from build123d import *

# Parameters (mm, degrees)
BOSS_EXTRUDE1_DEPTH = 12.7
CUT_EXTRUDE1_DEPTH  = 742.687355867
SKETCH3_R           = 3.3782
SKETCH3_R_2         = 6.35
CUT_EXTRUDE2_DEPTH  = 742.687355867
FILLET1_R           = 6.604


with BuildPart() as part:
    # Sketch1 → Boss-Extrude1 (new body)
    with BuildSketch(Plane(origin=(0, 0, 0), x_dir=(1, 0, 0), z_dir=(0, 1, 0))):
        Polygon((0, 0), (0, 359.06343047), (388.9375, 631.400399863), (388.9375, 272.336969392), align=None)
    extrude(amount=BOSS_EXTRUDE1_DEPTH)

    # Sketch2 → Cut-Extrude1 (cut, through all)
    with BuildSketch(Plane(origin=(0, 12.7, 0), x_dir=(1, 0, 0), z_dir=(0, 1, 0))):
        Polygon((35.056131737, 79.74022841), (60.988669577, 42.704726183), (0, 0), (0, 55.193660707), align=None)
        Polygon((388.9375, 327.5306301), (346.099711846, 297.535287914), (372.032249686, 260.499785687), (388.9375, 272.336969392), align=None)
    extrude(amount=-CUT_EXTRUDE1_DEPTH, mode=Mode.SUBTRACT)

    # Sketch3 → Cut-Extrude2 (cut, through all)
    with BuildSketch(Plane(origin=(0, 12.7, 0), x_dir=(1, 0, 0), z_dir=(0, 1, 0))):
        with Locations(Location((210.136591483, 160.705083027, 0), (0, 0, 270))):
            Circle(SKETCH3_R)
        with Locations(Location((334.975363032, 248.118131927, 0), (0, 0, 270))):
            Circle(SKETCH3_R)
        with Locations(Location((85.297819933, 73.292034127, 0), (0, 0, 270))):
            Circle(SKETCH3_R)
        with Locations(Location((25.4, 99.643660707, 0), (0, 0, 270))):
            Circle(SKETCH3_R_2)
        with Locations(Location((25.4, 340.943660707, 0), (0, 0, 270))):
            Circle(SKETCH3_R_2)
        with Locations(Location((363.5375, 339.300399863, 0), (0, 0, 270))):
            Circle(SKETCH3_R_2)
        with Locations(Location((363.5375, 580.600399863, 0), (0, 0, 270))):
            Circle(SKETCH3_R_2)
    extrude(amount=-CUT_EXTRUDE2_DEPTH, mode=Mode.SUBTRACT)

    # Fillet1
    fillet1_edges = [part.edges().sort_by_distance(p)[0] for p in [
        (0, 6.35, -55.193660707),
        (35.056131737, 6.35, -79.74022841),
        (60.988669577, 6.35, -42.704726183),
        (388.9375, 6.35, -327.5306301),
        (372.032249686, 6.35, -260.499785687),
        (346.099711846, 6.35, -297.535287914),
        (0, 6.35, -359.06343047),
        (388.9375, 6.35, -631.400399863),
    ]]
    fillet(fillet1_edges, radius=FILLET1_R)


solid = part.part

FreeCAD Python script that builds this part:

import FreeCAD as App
import Part
import Sketcher
from FreeCAD import Vector
Q = App.Units.Quantity


def edges_at(feature, points):
    """Names of the edges that pass closest to the given points."""
    edges = feature.Shape.Edges
    near = lambda p: min(range(len(edges)), key=lambda i: edges[i].distToShape(Part.Vertex(*p))[0])
    return sorted({f"Edge{near(p) + 1}" for p in points})


def add_polygon(sketch, points):
    """Adds a closed chain of lines whose ends are joined by coincident constraints."""
    first, n = sketch.GeometryCount, len(points)
    for a, b in zip(points, points[1:] + points[:1]):
        sketch.addGeometry(Part.LineSegment(App.Vector(*a, 0), App.Vector(*b, 0)), False)
    for i in range(n):
        sketch.addConstraint(Sketcher.Constraint("Coincident", first + i, 2, first + (i + 1) % n, 1))

doc = App.newDocument("Part")
body = doc.addObject("PartDesign::Body", "Body")

sketch1 = doc.addObject("Sketcher::SketchObject", "Sketch")
body.addObject(sketch1)
sketch1.AttachmentSupport = (doc.XZ_Plane, [""])
sketch1.MapMode = "FlatFace"
add_polygon(sketch1, [(0, -359.06343), (0, 0), (388.9375, -272.336969), (388.9375, -631.4004)])
sketch1.addConstraint([
    Sketcher.Constraint("Vertical", 0),
    Sketcher.Constraint("Vertical", 2),
    Sketcher.Constraint("Coincident", 0, 2, -1, 1),
    Sketcher.Constraint("Parallel", 1, 3),
    Sketcher.Constraint("Angle", 1, Q("-35 deg")),
    Sketcher.Constraint("DistanceX", -1, 1, 1, 2, Q("15.3125 in")),
    Sketcher.Constraint("DistanceY", 0, 1, 0, 2, 359.06343),
])
pad1 = doc.addObject("PartDesign::Pad", "Pad")
body.addObject(pad1)
pad1.Profile = sketch1
pad1.Length = Q("0.5 in")
pad1.Reversed = True

sketch2 = doc.addObject("Sketcher::SketchObject", "Sketch001")
body.addObject(sketch2)
sketch2.AttachmentSupport = (doc.XZ_Plane, [""])
sketch2.MapMode = "FlatFace"
sketch2.AttachmentOffset = App.Placement(Vector(0, 0, -0.5 * 25.4), App.Rotation())
add_polygon(sketch2, [(60.98867, -42.704726), (35.056132, -79.740228), (0, -55.193661), (0, 0)])
add_polygon(sketch2, [(388.9375, -327.53063), (346.099712, -297.535288), (372.03225, -260.499786), (388.9375, -272.336969)])
sketch2.addConstraint([
    Sketcher.Constraint("Vertical", 2),
    Sketcher.Constraint("Vertical", 7),
    Sketcher.Constraint("Coincident", 2, 2, -1, 1),
    Sketcher.Constraint("Perpendicular", 0, 1),
    Sketcher.Constraint("Parallel", 1, 3),
    Sketcher.Constraint("Parallel", 3, 4),
    Sketcher.Constraint("Perpendicular", 4, 5),
    Sketcher.Constraint("Perpendicular", 5, 6),
    Sketcher.Constraint("Equal", 2, 7),
    Sketcher.Constraint("Angle", 0, Q("-125 deg")),
    Sketcher.Constraint("Distance", 0, Q("1.78 in")),
    Sketcher.Constraint("Distance", 6, Q("0.8125 in")),
    Sketcher.Constraint("DistanceX", -1, 1, 6, 2, Q("15.3125 in")),
    Sketcher.Constraint("DistanceY", 7, 2, 0, 2, 247.790402),
    Sketcher.Constraint("Distance", 3, 74.453418),
])
pocket1 = doc.addObject("PartDesign::Pocket", "Pocket")
body.addObject(pocket1)
pocket1.Profile = sketch2
pocket1.Type = "ThroughAll"
pocket1.Reversed = True

sketch3 = doc.addObject("Sketcher::SketchObject", "Sketch002")
body.addObject(sketch3)
sketch3.AttachmentSupport = (doc.XZ_Plane, [""])
sketch3.MapMode = "FlatFace"
sketch3.AttachmentOffset = App.Placement(Vector(0, 0, -0.5 * 25.4), App.Rotation())
sketch3.addGeometry([
    Part.Circle(Vector(210.136591, -160.705083, 0), Vector(0, 0, 1), 3.3782),
    Part.Circle(Vector(334.975363, -248.118132, 0), Vector(0, 0, 1), 3.3782),
    Part.Circle(Vector(85.29782, -73.292034, 0), Vector(0, 0, 1), 3.3782),
    Part.Circle(Vector(25.4, -99.643661, 0), Vector(0, 0, 1), 6.35),
    Part.Circle(Vector(25.4, -340.943661, 0), Vector(0, 0, 1), 6.35),
    Part.Circle(Vector(363.5375, -339.3004, 0), Vector(0, 0, 1), 6.35),
    Part.Circle(Vector(363.5375, -580.6004, 0), Vector(0, 0, 1), 6.35),
], False)
sketch3.addConstraint([
    Sketcher.Constraint("Equal", 0, 1),
    Sketcher.Constraint("Equal", 1, 2),
    Sketcher.Constraint("Equal", 3, 4),
    Sketcher.Constraint("Equal", 4, 5),
    Sketcher.Constraint("Equal", 5, 6),
    Sketcher.Constraint("Vertical", 3, 3, 4, 3),
    Sketcher.Constraint("Vertical", 5, 3, 6, 3),
    Sketcher.Constraint("Diameter", 3, Q("0.5 in")),
    Sketcher.Constraint("Diameter", 0, Q("0.266 in")),
    Sketcher.Constraint("DistanceX", -1, 1, 3, 3, Q("1 in")),
    Sketcher.Constraint("DistanceY", 4, 3, 3, 3, Q("9.5 in")),
    Sketcher.Constraint("DistanceY", 6, 3, 5, 3, Q("9.5 in")),
    Sketcher.Constraint("DistanceX", -1, 1, 5, 3, Q("14.3125 in")),
    Sketcher.Constraint("DistanceY", 5, 3, -1, 1, 339.3004),
    Sketcher.Constraint("DistanceX", -1, 1, 0, 3, 210.136591),
    Sketcher.Constraint("DistanceY", 1, 3, -1, 1, 248.118132),
    Sketcher.Constraint("DistanceX", -1, 1, 2, 3, 85.29782),
    Sketcher.Constraint("DistanceY", 3, 3, -1, 1, 99.643661),
    Sketcher.Constraint("DistanceX", 0, 3, 1, 3, 124.838772),
    Sketcher.Constraint("DistanceY", 1, 3, 0, 3, 87.413049),
    Sketcher.Constraint("DistanceY", 0, 3, 2, 3, 87.413049),
])
pocket2 = doc.addObject("PartDesign::Pocket", "Pocket001")
body.addObject(pocket2)
pocket2.Profile = sketch3
pocket2.Type = "ThroughAll"
pocket2.Reversed = True
doc.recompute()

fillet = doc.addObject("PartDesign::Fillet", "Fillet")
body.addObject(fillet)
fillet.Base = (pocket2, edges_at(pocket2, [
    (0, 6.35, -55.194),
    (35.056, 6.35, -79.74),
    (60.989, 6.35, -42.705),
    (388.938, 6.35, -327.531),
    (372.032, 6.35, -260.5),
    (346.1, 6.35, -297.535),
    (0, 6.35, -359.063),
    (388.938, 6.35, -631.4),
]))
fillet.Radius = Q("0.26 in")

doc.recompute()
